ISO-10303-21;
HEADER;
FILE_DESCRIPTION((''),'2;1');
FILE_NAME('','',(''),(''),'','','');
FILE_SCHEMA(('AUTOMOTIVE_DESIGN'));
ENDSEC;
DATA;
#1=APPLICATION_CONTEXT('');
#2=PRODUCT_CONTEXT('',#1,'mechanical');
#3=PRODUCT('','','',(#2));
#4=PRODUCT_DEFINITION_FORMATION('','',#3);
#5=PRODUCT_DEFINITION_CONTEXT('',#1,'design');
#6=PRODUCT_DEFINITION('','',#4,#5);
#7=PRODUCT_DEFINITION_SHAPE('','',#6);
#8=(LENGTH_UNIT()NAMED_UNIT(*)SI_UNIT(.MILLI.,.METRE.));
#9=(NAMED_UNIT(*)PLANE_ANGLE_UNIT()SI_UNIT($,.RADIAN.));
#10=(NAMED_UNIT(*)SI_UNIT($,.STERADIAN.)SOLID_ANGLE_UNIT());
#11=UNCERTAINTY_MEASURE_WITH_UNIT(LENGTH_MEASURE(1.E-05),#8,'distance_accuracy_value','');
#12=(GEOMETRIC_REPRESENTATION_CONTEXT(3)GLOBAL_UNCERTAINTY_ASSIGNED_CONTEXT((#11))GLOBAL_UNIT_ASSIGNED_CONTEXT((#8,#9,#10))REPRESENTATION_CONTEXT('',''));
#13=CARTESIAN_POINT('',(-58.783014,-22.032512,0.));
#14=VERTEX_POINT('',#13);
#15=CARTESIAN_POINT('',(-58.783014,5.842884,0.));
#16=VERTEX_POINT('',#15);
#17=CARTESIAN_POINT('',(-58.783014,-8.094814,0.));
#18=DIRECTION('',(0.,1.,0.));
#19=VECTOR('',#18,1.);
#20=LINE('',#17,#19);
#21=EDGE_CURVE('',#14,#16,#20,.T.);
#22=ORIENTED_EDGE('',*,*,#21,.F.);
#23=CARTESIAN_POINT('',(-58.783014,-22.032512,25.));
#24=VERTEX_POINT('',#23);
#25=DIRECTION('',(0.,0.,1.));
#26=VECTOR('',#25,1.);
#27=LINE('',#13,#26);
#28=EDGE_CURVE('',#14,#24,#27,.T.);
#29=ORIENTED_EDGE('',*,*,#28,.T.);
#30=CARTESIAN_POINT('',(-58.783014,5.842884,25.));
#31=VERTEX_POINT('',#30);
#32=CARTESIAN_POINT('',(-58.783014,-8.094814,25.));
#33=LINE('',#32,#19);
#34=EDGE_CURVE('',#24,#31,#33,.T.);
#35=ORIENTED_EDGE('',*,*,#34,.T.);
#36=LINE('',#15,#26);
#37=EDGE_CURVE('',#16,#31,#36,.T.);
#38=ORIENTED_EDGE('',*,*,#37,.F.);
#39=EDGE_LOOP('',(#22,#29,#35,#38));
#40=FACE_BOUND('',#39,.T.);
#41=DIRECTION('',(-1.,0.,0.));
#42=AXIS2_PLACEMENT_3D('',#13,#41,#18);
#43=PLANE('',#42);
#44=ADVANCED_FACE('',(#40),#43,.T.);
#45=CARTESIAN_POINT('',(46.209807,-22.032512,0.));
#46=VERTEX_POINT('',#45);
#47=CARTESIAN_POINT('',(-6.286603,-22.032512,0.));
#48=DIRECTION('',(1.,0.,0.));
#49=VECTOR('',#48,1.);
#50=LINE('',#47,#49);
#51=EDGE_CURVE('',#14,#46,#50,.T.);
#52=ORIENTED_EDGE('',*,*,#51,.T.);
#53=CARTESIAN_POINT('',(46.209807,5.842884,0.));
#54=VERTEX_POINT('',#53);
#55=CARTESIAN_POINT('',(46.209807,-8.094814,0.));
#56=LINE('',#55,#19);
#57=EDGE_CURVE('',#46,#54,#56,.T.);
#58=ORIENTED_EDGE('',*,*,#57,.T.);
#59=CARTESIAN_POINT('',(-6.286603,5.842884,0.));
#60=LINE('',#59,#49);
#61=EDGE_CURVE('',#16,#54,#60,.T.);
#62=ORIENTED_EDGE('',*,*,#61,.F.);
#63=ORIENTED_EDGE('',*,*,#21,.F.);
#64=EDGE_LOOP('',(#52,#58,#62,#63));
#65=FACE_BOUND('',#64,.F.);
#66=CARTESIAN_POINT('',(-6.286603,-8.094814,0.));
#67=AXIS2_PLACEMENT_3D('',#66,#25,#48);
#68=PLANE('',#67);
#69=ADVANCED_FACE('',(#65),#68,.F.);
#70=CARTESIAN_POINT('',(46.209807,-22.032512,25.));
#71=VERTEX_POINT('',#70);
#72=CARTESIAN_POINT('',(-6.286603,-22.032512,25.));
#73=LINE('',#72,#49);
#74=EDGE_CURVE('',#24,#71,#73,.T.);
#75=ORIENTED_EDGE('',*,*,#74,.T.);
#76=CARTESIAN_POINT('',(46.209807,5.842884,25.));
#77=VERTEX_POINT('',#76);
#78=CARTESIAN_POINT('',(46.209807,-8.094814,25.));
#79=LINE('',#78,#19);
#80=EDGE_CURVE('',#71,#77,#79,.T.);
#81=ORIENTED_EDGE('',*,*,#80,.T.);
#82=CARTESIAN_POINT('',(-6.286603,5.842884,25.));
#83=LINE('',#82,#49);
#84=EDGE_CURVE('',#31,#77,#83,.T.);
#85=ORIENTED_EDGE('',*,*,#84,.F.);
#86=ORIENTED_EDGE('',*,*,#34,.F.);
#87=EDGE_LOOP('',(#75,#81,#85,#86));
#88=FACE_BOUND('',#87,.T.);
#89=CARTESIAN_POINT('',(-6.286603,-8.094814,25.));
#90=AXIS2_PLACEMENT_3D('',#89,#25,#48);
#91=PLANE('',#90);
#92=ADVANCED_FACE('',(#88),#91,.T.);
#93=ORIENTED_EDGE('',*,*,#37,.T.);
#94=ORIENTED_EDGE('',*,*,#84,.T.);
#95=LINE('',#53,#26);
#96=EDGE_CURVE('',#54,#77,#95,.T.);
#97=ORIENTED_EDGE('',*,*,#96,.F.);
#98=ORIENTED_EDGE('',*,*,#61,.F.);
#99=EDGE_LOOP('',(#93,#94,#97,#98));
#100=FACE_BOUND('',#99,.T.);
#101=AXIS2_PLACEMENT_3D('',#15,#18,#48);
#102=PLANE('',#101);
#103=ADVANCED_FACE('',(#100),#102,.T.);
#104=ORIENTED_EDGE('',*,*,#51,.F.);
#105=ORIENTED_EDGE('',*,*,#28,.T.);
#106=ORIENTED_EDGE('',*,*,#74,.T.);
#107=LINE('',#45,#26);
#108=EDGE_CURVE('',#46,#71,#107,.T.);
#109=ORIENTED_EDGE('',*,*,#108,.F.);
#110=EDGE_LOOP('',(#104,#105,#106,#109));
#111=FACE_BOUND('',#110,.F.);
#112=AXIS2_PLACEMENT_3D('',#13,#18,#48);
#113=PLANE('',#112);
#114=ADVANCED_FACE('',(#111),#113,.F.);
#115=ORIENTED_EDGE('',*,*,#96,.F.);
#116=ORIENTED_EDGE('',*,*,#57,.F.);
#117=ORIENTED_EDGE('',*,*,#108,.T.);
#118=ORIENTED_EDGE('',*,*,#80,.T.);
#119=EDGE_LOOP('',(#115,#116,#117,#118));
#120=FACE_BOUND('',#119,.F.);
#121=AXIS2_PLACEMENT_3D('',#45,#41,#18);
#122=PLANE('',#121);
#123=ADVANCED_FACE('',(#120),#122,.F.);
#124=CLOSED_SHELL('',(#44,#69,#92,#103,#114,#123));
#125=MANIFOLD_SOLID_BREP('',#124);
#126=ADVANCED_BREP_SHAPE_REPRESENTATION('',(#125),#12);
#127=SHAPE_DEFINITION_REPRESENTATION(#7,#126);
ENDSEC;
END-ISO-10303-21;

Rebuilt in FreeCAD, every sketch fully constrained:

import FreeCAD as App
import Part
import Sketcher
from FreeCAD import Vector


def add_polygon(sketch, points):
    """Adds a closed chain of lines whose ends are joined by coincident constraints."""
    first, n = sketch.GeometryCount, len(points)
    for a, b in zip(points, points[1:] + points[:1]):
        sketch.addGeometry(Part.LineSegment(App.Vector(*a, 0), App.Vector(*b, 0)), False)
    for i in range(n):
        sketch.addConstraint(Sketcher.Constraint("Coincident", first + i, 2, first + (i + 1) % n, 1))

doc = App.newDocument("Part")
params = doc.addObject("Spreadsheet::Sheet", "Params")
for row, (alias, value) in enumerate([
    ("pad1_length", "25 mm"),
], start=1):
    params.set(f"A{row}", alias)
    params.set(f"B{row}", "=" + value)
    params.setAlias(f"B{row}", alias)

body = doc.addObject("PartDesign::Body", "Body")

# Sketch on XY plane
sketch1 = body.newObject("Sketcher::SketchObject", "Sketch")
sketch1.AttachmentSupport = (doc.getObject("XY_Plane"), [""])
sketch1.MapMode = "FlatFace"
add_polygon(sketch1, [(-58.783014, 5.842884), (-58.783014, -22.032512), (46.209807, -22.032512), (46.209807, 5.842884)])  # lines 0-3
sketch1.addConstraint([
    Sketcher.Constraint("Vertical", 0),
    Sketcher.Constraint("Horizontal", 1),
    Sketcher.Constraint("Vertical", 2),
    Sketcher.Constraint("Horizontal", 3),
    Sketcher.Constraint("DistanceX", 1, 1, 1, 2, 104.992821),
    Sketcher.Constraint("DistanceY", 0, 2, 0, 1, 27.875396),
    Sketcher.Constraint("DistanceX", 0, 2, -1, 1, 58.783014),
    Sketcher.Constraint("DistanceY", 0, 2, -1, 1, 22.032512),
])
pad1 = body.newObject("PartDesign::Pad", "Pad")
pad1.Profile = sketch1
pad1.setExpression("Length", "Params.pad1_length")

doc.recompute()
